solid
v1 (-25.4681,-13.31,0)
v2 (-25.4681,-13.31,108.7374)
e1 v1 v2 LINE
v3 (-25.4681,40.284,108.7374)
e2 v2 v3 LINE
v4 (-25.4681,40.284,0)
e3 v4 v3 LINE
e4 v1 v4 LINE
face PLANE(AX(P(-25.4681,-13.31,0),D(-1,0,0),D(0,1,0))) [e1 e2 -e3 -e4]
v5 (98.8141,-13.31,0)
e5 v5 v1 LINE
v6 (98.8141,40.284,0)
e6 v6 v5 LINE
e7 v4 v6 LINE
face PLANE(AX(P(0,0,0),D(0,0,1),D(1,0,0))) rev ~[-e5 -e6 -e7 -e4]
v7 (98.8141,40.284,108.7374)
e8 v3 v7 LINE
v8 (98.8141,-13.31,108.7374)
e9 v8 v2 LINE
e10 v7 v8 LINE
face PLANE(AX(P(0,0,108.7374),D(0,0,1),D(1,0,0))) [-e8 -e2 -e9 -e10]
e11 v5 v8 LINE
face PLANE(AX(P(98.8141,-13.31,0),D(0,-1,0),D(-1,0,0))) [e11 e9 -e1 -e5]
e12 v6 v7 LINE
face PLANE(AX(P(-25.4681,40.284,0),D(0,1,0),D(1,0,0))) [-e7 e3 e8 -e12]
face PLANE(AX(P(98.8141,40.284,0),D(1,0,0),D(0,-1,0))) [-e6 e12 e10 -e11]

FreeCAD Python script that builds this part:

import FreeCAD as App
import Part
import Sketcher

V = App.Vector
Q = App.Units.Quantity


def add_polygon(sketch, points):
    """Adds a closed chain of lines whose ends are joined by coincident constraints."""
    first, n = sketch.GeometryCount, len(points)
    for a, b in zip(points, points[1:] + points[:1]):
        sketch.addGeometry(Part.LineSegment(App.Vector(*a, 0), App.Vector(*b, 0)), False)
    for i in range(n):
        sketch.addConstraint(Sketcher.Constraint("Coincident", first + i, 2, first + (i + 1) % n, 1))

doc = App.newDocument("Part")
body = doc.addObject("PartDesign::Body", "Body")

# Sketch on XY plane
sketch1 = body.newObject("Sketcher::SketchObject", "Sketch")
sketch1.AttachmentSupport = (doc.getObject("XY_Plane"), [""])
sketch1.MapMode = "FlatFace"
add_polygon(sketch1, [(99, 40), (-25, 40), (-25, -13), (99, -13)])  # lines 0-3
sketch1.addConstraint([
    Sketcher.Constraint("Horizontal", 0),
    Sketcher.Constraint("Vertical", 1),
    Sketcher.Constraint("Horizontal", 2),
    Sketcher.Constraint("Vertical", 3),
    Sketcher.Constraint("DistanceY", 1, 2, 1, 1, Q("2.11 in")),
    Sketcher.Constraint("DistanceX", 0, 2, 0, 1, Q("4.893 in")),
    Sketcher.Constraint("DistanceX", 0, 2, -1, 1, Q("25.468 mm")),
    Sketcher.Constraint("DistanceY", -1, 1, 0, 2, Q("40.284 mm")),
])
pad1 = body.newObject("PartDesign::Pad", "Pad")
pad1.Profile = sketch1
pad1.Length = Q("4.281 in")

doc.recompute()
